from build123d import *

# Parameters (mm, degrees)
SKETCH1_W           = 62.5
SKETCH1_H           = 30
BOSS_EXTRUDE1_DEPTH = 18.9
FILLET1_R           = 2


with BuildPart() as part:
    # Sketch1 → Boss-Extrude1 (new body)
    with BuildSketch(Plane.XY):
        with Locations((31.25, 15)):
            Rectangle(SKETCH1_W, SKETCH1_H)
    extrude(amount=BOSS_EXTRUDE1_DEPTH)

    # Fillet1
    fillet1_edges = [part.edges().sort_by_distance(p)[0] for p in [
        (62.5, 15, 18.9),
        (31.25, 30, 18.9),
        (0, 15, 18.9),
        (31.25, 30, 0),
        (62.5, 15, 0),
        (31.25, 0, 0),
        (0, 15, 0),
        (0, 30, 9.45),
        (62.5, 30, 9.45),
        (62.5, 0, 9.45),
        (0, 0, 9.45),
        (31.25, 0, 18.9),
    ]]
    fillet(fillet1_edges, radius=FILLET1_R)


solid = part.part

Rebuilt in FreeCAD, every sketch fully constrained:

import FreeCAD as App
import Part
import Sketcher
Q = App.Units.Quantity


def add_polygon(sketch, points):
    """Adds a closed chain of lines whose ends are joined by coincident constraints."""
    first, n = sketch.GeometryCount, len(points)
    for a, b in zip(points, points[1:] + points[:1]):
        sketch.addGeometry(Part.LineSegment(App.Vector(*a, 0), App.Vector(*b, 0)), False)
    for i in range(n):
        sketch.addConstraint(Sketcher.Constraint("Coincident", first + i, 2, first + (i + 1) % n, 1))

doc = App.newDocument("Part")
body = doc.addObject("PartDesign::Body", "Body")

sketch1 = doc.addObject("Sketcher::SketchObject", "Sketch")
body.addObject(sketch1)
sketch1.AttachmentSupport = (doc.XY_Plane, [""])
sketch1.MapMode = "FlatFace"
add_polygon(sketch1, [(0, 30), (0, 0), (62, 0), (62, 30)])
sketch1.addConstraint([
    Sketcher.Constraint("Vertical", 0),
    Sketcher.Constraint("Horizontal", 1),
    Sketcher.Constraint("Vertical", 2),
    Sketcher.Constraint("Horizontal", 3),
    Sketcher.Constraint("Coincident", 0, 2, -1, 1),
    Sketcher.Constraint("DistanceY", 0, 2, 0, 1, Q("30 mm")),
    Sketcher.Constraint("DistanceX", 1, 1, 1, 2, Q("62.5 mm")),
])
pad1 = doc.addObject("PartDesign::Pad", "Pad")
body.addObject(pad1)
pad1.Profile = sketch1
pad1.Length = 18.9
doc.recompute()

fillet = doc.addObject("PartDesign::Fillet", "Fillet")
body.addObject(fillet)
fillet.Base = (pad1, ["Edge1"])
fillet.UseAllEdges = True
fillet.Radius = 2

doc.recompute()
